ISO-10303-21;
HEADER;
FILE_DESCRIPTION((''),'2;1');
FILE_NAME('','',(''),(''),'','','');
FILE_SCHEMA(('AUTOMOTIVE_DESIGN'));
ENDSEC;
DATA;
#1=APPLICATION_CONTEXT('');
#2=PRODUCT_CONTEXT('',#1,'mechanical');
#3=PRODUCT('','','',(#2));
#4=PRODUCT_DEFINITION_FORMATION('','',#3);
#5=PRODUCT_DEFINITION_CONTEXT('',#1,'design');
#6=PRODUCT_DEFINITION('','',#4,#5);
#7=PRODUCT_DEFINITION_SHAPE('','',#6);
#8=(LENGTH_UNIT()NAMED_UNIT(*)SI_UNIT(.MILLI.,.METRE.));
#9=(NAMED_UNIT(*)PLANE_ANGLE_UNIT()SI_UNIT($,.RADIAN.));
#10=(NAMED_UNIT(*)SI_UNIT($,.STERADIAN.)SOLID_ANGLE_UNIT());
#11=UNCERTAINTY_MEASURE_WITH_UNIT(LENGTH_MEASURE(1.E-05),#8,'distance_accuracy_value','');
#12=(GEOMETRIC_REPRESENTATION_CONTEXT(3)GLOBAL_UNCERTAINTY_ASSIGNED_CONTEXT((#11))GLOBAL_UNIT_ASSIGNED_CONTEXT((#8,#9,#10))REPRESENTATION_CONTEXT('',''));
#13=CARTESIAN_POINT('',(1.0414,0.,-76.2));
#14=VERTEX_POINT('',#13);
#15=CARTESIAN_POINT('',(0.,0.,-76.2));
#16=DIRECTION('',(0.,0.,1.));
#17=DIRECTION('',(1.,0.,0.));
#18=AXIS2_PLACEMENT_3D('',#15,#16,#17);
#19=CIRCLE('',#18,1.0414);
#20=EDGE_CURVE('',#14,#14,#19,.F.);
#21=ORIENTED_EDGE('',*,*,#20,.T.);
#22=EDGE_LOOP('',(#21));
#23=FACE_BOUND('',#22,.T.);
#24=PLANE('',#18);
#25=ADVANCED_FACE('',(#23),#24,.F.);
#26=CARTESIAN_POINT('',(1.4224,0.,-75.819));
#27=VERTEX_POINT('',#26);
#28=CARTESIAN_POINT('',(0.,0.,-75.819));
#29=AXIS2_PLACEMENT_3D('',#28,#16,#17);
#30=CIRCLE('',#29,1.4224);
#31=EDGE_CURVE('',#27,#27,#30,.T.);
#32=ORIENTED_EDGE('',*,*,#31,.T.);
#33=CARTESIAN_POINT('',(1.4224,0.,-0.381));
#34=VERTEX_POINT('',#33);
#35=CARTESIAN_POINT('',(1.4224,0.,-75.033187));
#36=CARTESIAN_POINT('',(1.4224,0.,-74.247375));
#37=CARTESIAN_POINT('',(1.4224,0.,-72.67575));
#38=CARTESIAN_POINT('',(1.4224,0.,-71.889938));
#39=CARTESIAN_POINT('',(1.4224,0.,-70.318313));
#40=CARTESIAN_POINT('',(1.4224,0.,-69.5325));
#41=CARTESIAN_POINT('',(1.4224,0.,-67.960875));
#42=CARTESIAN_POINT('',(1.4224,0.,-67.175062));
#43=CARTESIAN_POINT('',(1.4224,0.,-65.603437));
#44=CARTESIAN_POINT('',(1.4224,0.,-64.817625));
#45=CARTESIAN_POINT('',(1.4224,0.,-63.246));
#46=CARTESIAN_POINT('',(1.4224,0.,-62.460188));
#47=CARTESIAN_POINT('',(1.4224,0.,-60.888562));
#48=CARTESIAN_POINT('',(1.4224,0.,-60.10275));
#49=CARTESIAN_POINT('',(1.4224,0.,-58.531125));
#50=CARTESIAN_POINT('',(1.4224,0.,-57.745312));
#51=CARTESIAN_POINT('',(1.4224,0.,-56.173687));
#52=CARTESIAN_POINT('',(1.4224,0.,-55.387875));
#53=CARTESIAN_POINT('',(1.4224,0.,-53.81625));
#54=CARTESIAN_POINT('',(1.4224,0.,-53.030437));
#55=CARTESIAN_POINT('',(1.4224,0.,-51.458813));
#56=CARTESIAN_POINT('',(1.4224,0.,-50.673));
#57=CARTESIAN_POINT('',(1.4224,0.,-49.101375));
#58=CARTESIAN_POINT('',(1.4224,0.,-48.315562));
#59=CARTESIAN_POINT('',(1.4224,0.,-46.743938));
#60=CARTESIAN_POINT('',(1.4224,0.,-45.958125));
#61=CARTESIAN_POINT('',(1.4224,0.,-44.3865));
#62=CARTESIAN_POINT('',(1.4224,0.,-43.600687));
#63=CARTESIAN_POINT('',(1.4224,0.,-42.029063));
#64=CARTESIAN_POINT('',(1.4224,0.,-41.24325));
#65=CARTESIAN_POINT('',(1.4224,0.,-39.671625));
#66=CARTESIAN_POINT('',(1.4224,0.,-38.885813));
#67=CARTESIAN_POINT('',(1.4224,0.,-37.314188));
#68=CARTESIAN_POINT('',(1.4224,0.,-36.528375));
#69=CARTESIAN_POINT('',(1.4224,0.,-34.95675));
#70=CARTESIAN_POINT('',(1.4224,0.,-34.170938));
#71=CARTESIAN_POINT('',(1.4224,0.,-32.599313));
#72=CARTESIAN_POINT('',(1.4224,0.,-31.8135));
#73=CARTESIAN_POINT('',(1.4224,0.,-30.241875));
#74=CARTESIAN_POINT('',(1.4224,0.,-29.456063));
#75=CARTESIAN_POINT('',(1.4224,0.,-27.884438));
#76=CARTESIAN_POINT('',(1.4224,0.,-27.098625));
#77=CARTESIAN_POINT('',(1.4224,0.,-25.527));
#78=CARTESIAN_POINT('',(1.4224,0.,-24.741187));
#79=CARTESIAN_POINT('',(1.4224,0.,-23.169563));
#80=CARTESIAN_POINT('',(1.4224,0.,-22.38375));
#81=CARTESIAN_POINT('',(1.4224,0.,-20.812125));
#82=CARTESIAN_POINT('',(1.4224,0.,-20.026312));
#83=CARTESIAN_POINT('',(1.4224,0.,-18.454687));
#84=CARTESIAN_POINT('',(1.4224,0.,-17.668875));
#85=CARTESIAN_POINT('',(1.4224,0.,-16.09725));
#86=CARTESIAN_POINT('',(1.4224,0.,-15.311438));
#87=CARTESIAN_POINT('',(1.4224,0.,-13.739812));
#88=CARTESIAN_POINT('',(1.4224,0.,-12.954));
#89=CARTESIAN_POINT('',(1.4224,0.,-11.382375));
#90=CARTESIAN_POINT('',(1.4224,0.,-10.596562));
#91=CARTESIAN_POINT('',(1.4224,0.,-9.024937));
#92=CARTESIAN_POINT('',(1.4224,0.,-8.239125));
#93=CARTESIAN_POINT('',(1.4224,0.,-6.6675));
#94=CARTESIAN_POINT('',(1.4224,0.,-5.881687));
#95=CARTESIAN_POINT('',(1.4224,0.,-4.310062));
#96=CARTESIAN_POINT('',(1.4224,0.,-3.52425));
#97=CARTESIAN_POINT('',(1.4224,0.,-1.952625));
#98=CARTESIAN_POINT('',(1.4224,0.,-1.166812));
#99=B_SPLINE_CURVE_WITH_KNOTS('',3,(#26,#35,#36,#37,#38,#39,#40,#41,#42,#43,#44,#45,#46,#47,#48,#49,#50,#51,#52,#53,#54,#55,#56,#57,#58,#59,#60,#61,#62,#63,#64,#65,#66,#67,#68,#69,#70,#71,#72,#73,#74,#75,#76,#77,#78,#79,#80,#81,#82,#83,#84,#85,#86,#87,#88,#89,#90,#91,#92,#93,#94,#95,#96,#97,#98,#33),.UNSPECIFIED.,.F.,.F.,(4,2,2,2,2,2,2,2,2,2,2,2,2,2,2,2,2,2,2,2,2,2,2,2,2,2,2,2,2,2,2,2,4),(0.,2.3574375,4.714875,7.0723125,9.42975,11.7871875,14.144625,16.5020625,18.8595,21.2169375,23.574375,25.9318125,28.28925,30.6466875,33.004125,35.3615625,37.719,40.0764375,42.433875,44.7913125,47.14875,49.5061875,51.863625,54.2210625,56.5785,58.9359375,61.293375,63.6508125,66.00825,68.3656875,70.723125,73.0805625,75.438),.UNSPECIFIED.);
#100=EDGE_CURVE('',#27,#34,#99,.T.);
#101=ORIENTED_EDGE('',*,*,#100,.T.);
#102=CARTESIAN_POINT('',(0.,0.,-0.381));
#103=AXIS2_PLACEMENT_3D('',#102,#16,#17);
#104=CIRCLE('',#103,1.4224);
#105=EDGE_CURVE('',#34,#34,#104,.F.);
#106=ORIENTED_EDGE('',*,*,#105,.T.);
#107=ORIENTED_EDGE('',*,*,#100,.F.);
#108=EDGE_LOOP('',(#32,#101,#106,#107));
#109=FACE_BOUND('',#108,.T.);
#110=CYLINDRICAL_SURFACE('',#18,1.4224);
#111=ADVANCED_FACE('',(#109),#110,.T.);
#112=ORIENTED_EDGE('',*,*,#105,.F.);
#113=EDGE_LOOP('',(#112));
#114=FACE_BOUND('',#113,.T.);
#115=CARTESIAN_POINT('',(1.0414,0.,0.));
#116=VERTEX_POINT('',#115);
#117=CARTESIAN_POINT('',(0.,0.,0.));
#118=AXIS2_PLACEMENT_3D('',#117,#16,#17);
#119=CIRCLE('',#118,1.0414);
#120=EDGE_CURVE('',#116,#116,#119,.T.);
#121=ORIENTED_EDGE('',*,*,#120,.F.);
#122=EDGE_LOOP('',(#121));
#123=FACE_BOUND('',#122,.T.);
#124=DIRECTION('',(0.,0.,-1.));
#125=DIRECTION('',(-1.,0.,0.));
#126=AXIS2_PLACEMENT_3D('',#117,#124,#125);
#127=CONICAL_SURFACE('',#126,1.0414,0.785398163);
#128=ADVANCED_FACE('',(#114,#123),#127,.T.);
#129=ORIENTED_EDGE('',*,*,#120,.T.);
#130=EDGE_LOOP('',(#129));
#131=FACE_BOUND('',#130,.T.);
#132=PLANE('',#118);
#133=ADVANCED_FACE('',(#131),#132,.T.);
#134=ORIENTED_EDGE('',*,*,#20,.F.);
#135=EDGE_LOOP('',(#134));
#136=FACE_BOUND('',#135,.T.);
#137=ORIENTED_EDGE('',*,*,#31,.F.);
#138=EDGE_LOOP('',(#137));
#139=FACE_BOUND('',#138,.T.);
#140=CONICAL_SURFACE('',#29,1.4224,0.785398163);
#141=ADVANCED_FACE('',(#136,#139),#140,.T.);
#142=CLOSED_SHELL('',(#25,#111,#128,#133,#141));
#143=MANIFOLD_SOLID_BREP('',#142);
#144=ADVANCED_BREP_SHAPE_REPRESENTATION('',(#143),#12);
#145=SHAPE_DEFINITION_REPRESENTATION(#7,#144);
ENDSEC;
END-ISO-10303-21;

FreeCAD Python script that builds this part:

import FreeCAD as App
import Part
import Sketcher
from FreeCAD import Vector
Q = App.Units.Quantity


def edges_at(feature, points):
    """Names of the edges that pass closest to the given points."""
    edges = feature.Shape.Edges
    near = lambda p: min(range(len(edges)), key=lambda i: edges[i].distToShape(Part.Vertex(*p))[0])
    return sorted({f"Edge{near(p) + 1}" for p in points})

doc = App.newDocument("Part")
body = doc.addObject("PartDesign::Body", "Body")

# Sketch on XY plane
sketch1 = body.newObject("Sketcher::SketchObject", "Sketch")
sketch1.AttachmentSupport = (doc.getObject("XY_Plane"), [""])
sketch1.MapMode = "FlatFace"
sketch1.addGeometry(Part.Circle(Vector(0, 0, 0), Vector(0, 0, 1), 1.4224), False)
sketch1.addConstraint(Sketcher.Constraint("Coincident", 0, 3, -1, 1))
sketch1.addConstraint(Sketcher.Constraint("Diameter", 0, Q("0.112 in")))
pad1 = body.newObject("PartDesign::Pad", "Pad")
pad1.Profile = sketch1
pad1.Length = Q("3 in")
pad1.Reversed = True
doc.recompute()

chamfer = body.newObject("PartDesign::Chamfer", "Chamfer")
chamfer.Base = (pad1, edges_at(pad1, [(-1.422, 0, 0), (-1.422, 0, -76.2)]))
chamfer.Size = Q("0.015 in")

doc.recompute()
